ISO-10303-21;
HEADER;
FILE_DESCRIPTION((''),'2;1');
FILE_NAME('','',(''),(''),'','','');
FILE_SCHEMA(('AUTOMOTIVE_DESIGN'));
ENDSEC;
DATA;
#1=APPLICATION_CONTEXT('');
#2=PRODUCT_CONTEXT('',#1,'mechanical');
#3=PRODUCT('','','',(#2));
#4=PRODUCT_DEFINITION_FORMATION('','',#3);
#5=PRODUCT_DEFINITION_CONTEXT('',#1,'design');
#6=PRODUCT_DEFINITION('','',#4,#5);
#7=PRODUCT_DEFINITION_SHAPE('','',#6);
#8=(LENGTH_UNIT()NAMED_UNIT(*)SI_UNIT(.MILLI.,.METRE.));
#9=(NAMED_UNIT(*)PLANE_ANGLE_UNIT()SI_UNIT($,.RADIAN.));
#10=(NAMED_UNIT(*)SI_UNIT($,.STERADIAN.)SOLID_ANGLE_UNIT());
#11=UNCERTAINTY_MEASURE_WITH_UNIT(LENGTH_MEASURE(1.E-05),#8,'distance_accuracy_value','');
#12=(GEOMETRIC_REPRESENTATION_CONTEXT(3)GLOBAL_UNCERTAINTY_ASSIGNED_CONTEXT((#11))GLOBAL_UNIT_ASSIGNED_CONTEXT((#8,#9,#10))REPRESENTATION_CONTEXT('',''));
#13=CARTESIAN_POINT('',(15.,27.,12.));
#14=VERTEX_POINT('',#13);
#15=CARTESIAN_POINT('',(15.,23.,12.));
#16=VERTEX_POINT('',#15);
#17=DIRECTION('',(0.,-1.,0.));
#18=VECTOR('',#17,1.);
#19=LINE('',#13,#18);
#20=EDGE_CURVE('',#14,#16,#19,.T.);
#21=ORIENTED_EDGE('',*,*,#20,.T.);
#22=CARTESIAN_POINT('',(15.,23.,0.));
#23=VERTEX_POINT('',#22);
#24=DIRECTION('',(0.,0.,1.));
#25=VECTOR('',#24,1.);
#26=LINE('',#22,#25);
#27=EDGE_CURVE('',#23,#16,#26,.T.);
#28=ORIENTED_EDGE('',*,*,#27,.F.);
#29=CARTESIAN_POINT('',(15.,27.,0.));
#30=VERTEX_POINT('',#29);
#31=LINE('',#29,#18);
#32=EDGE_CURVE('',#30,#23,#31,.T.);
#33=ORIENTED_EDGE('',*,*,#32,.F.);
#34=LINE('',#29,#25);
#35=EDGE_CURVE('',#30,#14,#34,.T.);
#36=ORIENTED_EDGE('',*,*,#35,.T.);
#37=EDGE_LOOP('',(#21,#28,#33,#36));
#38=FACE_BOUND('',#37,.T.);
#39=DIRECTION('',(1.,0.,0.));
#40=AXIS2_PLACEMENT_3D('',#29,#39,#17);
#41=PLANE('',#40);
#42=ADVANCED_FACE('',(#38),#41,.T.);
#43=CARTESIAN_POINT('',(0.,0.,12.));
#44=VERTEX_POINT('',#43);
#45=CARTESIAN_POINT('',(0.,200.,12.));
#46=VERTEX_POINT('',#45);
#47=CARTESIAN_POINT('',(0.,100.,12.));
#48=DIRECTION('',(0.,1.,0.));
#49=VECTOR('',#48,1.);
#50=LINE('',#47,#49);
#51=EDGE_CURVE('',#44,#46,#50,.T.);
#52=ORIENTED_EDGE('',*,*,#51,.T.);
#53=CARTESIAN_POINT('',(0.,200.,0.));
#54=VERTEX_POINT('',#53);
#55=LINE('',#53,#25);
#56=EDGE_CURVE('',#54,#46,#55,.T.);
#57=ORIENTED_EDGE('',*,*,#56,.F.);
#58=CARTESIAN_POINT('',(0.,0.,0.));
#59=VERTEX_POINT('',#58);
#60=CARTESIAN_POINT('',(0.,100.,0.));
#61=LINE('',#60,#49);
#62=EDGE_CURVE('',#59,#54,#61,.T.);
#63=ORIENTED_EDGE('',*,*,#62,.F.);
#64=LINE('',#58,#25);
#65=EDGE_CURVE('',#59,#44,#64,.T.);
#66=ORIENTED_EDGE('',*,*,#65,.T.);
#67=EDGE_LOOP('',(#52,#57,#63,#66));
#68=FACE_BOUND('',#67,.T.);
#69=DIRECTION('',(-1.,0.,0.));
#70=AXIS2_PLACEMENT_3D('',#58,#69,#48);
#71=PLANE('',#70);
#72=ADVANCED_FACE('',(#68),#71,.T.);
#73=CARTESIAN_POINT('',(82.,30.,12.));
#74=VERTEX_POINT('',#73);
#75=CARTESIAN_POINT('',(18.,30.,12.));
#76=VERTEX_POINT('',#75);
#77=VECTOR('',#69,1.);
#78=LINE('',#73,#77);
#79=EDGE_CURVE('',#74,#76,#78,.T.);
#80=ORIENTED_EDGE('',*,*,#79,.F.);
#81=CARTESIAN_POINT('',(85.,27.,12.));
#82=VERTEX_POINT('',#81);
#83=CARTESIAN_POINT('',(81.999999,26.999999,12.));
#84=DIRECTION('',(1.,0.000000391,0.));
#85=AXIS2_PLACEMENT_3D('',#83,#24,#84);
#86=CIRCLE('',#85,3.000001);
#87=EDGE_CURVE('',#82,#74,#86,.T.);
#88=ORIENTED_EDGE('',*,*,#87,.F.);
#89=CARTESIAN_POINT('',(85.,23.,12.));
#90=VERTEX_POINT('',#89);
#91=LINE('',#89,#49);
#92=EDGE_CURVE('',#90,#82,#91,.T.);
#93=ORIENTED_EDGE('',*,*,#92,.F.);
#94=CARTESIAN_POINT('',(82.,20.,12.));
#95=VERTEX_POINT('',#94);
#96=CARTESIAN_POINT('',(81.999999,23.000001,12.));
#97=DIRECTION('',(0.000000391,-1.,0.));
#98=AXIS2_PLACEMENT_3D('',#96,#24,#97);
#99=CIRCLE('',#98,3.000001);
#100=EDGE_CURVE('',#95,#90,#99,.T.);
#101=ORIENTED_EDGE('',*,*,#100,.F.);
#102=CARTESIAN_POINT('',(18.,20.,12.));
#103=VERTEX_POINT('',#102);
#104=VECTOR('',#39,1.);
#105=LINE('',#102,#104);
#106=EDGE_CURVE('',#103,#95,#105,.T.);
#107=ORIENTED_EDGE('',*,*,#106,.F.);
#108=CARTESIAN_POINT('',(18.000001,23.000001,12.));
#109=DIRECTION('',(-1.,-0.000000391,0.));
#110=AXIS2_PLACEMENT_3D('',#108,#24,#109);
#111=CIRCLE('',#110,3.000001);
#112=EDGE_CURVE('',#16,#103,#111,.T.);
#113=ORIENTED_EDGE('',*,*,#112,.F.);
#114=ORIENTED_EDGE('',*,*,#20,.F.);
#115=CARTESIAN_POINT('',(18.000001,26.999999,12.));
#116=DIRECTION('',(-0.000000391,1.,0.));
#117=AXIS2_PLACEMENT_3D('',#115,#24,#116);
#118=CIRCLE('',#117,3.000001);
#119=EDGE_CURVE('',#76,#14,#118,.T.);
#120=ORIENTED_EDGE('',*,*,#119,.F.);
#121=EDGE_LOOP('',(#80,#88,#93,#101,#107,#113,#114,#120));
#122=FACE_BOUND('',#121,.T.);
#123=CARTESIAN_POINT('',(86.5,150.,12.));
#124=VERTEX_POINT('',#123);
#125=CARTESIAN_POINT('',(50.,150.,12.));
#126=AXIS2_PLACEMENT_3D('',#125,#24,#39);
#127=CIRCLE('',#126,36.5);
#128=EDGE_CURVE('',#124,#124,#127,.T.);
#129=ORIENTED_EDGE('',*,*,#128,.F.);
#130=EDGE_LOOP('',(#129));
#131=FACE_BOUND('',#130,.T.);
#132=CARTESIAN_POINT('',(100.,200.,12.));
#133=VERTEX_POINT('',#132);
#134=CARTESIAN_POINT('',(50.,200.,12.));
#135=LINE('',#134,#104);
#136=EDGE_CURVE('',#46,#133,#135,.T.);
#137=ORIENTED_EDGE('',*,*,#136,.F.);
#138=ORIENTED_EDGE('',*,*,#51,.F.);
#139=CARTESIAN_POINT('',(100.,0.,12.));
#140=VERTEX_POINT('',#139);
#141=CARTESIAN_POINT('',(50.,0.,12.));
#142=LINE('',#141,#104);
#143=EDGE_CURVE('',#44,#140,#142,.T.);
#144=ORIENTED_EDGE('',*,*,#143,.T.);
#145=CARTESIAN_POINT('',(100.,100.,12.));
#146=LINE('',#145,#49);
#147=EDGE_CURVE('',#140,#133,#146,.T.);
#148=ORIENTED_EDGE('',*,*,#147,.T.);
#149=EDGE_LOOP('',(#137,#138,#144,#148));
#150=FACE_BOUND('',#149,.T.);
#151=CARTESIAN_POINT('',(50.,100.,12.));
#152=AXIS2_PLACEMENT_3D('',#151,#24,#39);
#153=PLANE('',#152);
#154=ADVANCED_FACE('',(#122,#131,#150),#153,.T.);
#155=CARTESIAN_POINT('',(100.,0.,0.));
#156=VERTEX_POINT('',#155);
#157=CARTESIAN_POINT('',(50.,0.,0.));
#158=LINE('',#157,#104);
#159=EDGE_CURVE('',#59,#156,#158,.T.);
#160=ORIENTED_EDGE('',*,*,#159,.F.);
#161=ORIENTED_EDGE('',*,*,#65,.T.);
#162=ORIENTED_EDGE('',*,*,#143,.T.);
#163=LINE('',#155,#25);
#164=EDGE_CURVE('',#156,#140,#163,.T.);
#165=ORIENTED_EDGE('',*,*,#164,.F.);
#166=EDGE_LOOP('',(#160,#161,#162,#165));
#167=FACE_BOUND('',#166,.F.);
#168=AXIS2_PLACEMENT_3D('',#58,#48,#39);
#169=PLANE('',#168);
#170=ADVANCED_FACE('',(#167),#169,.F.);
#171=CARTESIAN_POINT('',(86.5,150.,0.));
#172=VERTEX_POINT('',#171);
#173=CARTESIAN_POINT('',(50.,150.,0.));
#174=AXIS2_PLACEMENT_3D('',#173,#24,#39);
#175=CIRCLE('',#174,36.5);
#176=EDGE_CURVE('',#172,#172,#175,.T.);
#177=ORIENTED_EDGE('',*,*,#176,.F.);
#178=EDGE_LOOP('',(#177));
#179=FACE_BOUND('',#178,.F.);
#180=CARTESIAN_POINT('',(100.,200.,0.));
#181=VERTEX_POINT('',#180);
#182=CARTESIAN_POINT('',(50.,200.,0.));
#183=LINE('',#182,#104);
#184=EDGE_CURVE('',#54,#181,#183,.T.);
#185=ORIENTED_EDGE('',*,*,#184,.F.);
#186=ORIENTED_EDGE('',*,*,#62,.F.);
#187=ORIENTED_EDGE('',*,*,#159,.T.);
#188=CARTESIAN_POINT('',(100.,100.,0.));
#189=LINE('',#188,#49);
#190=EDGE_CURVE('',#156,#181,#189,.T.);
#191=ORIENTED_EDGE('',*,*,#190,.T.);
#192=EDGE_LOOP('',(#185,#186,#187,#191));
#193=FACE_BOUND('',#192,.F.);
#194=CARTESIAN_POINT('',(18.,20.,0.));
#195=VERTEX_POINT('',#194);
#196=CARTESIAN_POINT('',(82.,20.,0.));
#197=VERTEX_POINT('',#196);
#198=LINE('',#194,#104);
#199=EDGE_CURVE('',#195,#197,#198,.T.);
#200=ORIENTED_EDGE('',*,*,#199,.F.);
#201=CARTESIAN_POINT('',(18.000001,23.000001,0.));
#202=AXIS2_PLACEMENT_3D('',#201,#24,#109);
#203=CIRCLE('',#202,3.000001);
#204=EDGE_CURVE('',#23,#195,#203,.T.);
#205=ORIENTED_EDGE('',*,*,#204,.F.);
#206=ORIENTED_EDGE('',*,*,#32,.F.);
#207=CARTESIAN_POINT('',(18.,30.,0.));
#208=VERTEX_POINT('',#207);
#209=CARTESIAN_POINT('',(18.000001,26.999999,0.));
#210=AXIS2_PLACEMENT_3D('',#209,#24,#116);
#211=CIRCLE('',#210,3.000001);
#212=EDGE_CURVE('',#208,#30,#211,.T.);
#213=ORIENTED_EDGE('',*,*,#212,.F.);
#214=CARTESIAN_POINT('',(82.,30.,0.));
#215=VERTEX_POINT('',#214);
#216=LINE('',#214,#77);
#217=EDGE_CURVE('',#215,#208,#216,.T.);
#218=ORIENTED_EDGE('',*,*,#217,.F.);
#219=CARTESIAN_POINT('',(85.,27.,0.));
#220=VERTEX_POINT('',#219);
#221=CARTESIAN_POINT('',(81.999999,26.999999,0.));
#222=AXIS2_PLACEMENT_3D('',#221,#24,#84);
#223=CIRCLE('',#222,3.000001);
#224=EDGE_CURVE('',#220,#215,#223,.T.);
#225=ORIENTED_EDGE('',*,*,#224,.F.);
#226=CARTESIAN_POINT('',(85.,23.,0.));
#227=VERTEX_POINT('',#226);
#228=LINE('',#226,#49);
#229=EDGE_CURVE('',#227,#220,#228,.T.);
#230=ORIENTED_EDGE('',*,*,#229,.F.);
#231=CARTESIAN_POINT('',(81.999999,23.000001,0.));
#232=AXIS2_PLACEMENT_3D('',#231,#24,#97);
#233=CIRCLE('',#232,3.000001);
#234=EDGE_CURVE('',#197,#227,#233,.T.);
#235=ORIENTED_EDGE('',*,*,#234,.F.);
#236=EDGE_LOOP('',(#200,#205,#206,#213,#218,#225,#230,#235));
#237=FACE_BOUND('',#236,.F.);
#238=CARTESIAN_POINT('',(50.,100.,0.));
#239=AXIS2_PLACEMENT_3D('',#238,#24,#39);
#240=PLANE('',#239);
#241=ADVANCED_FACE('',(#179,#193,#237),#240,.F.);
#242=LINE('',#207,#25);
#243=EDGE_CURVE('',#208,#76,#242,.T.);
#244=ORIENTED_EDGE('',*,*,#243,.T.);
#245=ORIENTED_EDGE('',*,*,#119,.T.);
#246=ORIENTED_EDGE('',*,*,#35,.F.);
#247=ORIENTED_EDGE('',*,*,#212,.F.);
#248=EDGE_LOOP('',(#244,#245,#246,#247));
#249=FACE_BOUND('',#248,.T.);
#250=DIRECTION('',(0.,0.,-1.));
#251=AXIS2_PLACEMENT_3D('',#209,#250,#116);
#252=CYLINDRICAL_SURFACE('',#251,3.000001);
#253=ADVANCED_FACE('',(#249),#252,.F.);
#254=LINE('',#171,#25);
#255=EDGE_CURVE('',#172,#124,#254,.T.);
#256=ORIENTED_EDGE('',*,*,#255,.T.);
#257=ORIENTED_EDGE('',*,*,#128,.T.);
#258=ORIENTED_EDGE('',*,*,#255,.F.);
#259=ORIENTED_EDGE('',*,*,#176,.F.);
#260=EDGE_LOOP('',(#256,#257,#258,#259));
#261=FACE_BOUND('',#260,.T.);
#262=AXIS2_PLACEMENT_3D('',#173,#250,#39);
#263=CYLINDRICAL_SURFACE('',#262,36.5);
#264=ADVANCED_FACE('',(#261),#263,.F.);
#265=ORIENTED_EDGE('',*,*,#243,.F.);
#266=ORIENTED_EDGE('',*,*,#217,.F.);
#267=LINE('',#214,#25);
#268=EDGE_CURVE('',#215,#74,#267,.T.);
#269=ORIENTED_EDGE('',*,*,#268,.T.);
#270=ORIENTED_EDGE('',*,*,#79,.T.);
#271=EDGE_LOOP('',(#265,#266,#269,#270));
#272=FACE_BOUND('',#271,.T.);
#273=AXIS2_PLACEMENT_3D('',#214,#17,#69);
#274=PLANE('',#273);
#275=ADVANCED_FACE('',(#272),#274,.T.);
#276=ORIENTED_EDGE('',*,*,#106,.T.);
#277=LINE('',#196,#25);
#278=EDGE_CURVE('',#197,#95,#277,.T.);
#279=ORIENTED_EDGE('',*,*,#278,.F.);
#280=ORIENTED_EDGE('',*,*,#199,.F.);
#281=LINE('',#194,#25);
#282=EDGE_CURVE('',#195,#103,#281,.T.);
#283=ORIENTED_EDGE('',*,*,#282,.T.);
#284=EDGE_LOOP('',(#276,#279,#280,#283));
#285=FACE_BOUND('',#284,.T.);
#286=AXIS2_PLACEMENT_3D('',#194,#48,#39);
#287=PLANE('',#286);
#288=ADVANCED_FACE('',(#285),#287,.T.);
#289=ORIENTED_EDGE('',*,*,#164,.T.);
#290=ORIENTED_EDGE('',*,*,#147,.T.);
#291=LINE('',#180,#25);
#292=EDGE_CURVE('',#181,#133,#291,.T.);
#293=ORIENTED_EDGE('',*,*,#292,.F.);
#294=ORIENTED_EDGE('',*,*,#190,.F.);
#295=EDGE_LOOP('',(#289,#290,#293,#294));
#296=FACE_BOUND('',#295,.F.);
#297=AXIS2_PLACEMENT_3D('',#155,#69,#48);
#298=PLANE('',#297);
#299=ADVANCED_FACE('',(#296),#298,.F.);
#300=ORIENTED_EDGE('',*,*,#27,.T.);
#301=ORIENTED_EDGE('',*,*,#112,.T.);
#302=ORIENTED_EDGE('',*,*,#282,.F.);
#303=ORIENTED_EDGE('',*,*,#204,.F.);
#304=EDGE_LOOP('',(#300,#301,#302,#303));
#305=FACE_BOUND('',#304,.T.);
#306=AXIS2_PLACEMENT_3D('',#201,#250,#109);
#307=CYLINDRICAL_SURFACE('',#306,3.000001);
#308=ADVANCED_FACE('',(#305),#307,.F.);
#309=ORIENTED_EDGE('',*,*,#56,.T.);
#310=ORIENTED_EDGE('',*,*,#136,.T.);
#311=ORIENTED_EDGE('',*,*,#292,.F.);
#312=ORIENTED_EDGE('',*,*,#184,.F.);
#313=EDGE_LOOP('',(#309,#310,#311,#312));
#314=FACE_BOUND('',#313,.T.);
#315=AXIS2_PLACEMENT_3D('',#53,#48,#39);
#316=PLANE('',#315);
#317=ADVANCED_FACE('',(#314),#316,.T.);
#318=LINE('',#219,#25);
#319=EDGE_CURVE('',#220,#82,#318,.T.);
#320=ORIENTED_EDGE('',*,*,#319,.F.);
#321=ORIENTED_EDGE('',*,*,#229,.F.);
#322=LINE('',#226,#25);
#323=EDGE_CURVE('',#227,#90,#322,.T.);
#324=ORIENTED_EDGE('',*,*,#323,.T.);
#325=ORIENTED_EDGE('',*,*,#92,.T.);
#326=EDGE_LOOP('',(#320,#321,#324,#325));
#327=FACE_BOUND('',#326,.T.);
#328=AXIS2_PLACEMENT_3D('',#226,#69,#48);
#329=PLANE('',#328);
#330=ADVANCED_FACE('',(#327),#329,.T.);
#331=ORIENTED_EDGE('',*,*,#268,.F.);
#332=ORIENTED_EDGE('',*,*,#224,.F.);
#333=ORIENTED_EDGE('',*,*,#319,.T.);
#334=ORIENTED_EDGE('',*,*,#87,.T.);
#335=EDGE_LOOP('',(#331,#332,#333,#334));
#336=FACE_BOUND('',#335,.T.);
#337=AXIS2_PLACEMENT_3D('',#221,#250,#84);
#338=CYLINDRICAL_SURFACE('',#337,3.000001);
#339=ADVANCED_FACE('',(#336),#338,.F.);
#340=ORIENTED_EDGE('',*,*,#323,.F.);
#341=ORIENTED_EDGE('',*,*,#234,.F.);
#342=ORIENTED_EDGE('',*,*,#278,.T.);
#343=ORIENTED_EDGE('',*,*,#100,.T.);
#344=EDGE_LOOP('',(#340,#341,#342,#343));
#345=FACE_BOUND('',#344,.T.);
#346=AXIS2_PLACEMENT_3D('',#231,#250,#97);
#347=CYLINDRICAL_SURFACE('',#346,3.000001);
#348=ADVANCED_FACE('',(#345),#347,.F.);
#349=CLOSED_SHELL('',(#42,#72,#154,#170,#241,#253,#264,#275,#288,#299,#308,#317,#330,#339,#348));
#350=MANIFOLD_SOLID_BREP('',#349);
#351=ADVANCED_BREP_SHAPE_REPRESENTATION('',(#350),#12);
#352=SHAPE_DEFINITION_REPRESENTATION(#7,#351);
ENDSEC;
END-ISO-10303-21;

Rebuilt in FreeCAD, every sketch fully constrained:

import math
import FreeCAD as App
import Part
import Sketcher

V = App.Vector
Q = App.Units.Quantity


def add_polygon(sketch, points):
    """Adds a closed chain of lines whose ends are joined by coincident constraints."""
    first, n = sketch.GeometryCount, len(points)
    for a, b in zip(points, points[1:] + points[:1]):
        sketch.addGeometry(Part.LineSegment(App.Vector(*a, 0), App.Vector(*b, 0)), False)
    for i in range(n):
        sketch.addConstraint(Sketcher.Constraint("Coincident", first + i, 2, first + (i + 1) % n, 1))

doc = App.newDocument("Part")
params = doc.addObject("Spreadsheet::Sheet", "Params")
for row, (alias, value) in enumerate([
    ("sketch1_diameter", "73 mm"),
    ("sketch1_radius", "3.000001 mm"),
    ("sketch1_width", "100 mm"),
    ("sketch1_width2", "64 mm"),
    ("sketch1_height", "200 mm"),
    ("pad1_length", "12 mm"),
], start=1):
    params.set(f"A{row}", alias)
    params.set(f"B{row}", "=" + value)
    params.setAlias(f"B{row}", alias)

body = doc.addObject("PartDesign::Body", "Body")

sketch1 = body.newObject("Sketcher::SketchObject", "Sketch")
sketch1.AttachmentSupport = (doc.getObject("XY_Plane"), [""])
sketch1.MapMode = "FlatFace"
add_polygon(sketch1, [(0, 200), (0, 0), (100, 0), (100, 200)])
sketch1.addGeometry(Part.LineSegment(V(82, 20, 0), V(18, 20, 0)), False)
sketch1.addGeometry(Part.ArcOfCircle(Part.Circle(V(18, 23, 0), V(0, 0, 1), 3), math.radians(-180), math.radians(-90)), False)
sketch1.addGeometry(Part.LineSegment(V(15, 23, 0), V(15, 27, 0)), False)
sketch1.addGeometry(Part.ArcOfCircle(Part.Circle(V(18, 27, 0), V(0, 0, 1), 3), math.radians(90), math.radians(180)), False)
sketch1.addGeometry(Part.LineSegment(V(18, 30, 0), V(82, 30, 0)), False)
sketch1.addGeometry(Part.ArcOfCircle(Part.Circle(V(82, 27, 0), V(0, 0, 1), 3), math.radians(0), math.radians(90)), False)
sketch1.addGeometry(Part.LineSegment(V(85, 27, 0), V(85, 23, 0)), False)
sketch1.addGeometry(Part.ArcOfCircle(Part.Circle(V(82, 23, 0), V(0, 0, 1), 3), math.radians(-90), math.radians(0)), False)
sketch1.addGeometry(Part.Circle(V(50, 150, 0), V(0, 0, 1), 36.5), False)
sketch1.addConstraint(Sketcher.Constraint("Tangent", 4, 2, 5, 2))
sketch1.addConstraint(Sketcher.Constraint("Tangent", 5, 1, 6, 1))
sketch1.addConstraint(Sketcher.Constraint("Tangent", 6, 2, 7, 2))
sketch1.addConstraint(Sketcher.Constraint("Tangent", 7, 1, 8, 1))
sketch1.addConstraint(Sketcher.Constraint("Tangent", 8, 2, 9, 2))
sketch1.addConstraint(Sketcher.Constraint("Tangent", 9, 1, 10, 1))
sketch1.addConstraint(Sketcher.Constraint("Tangent", 10, 2, 11, 2))
sketch1.addConstraint(Sketcher.Constraint("Tangent", 11, 1, 4, 1))
sketch1.addConstraint(Sketcher.Constraint("Vertical", 0))
sketch1.addConstraint(Sketcher.Constraint("Horizontal", 1))
sketch1.addConstraint(Sketcher.Constraint("Vertical", 2))
sketch1.addConstraint(Sketcher.Constraint("Horizontal", 3))
sketch1.addConstraint(Sketcher.Constraint("Horizontal", 4))
sketch1.addConstraint(Sketcher.Constraint("Vertical", 6))
sketch1.addConstraint(Sketcher.Constraint("Horizontal", 8))
sketch1.addConstraint(Sketcher.Constraint("Vertical", 10))
sketch1.addConstraint(Sketcher.Constraint("Coincident", 0, 2, -1, 1))
sketch1.addConstraint(Sketcher.Constraint("Equal", 5, 7))
sketch1.addConstraint(Sketcher.Constraint("Equal", 7, 9))
sketch1.addConstraint(Sketcher.Constraint("Equal", 9, 11))
sketch1.addConstraint(Sketcher.Constraint("Diameter", 12, Q("73 mm")))
sketch1.addConstraint(Sketcher.Constraint("Radius", 5, Q("3.000001 mm")))
sketch1.addConstraint(Sketcher.Constraint("DistanceX", 1, 1, 1, 2, Q("100 mm")))
sketch1.addConstraint(Sketcher.Constraint("DistanceX", 4, 2, 4, 1, Q("64 mm")))
sketch1.addConstraint(Sketcher.Constraint("DistanceY", 0, 2, 0, 1, Q("200 mm")))
sketch1.addConstraint(Sketcher.Constraint("DistanceY", 6, 1, 6, 2, Q("4 mm")))
sketch1.addConstraint(Sketcher.Constraint("DistanceX", -1, 1, 5, 3, Q("18.000001 mm")))
sketch1.addConstraint(Sketcher.Constraint("DistanceY", -1, 1, 5, 3, Q("23.000001 mm")))
sketch1.addConstraint(Sketcher.Constraint("DistanceX", -1, 1, 12, 3, Q("50 mm")))
sketch1.addConstraint(Sketcher.Constraint("DistanceY", -1, 1, 12, 3, Q("150 mm")))
sketch1.setExpression("Constraints[24]", "Params.sketch1_diameter")
sketch1.setExpression("Constraints[25]", "Params.sketch1_radius")
sketch1.setExpression("Constraints[26]", "Params.sketch1_width")
sketch1.setExpression("Constraints[27]", "Params.sketch1_width2")
sketch1.setExpression("Constraints[28]", "Params.sketch1_height")
pad1 = body.newObject("PartDesign::Pad", "Pad")
pad1.Profile = sketch1
pad1.setExpression("Length", "Params.pad1_length")

doc.recompute()
